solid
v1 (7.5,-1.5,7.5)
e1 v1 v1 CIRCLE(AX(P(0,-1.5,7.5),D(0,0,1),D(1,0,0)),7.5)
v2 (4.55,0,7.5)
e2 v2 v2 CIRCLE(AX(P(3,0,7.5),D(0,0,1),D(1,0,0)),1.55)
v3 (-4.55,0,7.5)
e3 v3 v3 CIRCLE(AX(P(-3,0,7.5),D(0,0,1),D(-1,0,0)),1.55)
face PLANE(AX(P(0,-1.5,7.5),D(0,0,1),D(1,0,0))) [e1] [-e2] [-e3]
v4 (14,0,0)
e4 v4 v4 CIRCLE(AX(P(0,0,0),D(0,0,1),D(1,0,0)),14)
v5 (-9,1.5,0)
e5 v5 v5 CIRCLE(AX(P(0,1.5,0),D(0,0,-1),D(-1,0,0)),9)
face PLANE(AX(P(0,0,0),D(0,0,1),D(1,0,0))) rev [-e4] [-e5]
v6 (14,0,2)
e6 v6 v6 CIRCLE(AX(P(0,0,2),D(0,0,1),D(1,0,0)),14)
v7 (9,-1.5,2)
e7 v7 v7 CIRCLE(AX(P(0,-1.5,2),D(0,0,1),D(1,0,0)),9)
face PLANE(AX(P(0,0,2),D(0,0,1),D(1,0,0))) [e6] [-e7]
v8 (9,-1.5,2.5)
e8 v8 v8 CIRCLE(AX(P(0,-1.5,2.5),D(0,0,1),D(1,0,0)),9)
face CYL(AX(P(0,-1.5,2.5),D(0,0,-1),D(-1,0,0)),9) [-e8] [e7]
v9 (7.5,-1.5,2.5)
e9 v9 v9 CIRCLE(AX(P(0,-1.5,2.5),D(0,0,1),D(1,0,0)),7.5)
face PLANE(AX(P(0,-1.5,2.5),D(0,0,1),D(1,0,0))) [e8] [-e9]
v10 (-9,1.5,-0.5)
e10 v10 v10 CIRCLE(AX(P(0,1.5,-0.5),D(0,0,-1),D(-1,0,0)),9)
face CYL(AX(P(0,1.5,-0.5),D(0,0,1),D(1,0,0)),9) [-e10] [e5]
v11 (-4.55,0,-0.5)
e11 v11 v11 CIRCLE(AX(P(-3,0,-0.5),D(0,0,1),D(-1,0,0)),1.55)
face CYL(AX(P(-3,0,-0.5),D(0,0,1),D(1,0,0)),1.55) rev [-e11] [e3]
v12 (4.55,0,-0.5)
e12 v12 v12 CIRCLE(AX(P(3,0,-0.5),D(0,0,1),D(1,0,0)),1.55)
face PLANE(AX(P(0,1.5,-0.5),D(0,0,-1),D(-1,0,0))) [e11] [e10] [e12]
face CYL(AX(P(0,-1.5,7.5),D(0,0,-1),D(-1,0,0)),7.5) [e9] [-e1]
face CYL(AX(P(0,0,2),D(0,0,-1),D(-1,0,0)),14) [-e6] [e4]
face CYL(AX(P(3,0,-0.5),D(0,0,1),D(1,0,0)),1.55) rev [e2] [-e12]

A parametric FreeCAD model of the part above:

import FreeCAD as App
import Part
import Sketcher
from FreeCAD import Vector

doc = App.newDocument("Part")
body = doc.addObject("PartDesign::Body", "Body")

# Sketch on XY plane
sketch1 = body.newObject("Sketcher::SketchObject", "Sketch")
sketch1.AttachmentSupport = (doc.getObject("XY_Plane"), [""])
sketch1.MapMode = "FlatFace"
sketch1.addGeometry(Part.Circle(Vector(0, 0, 0), Vector(0, 0, 1), 14), False)
sketch1.addConstraint([
    Sketcher.Constraint("Coincident", 0, 3, -1, 1),
    Sketcher.Constraint("Diameter", 0, 28.0),
])
pad1 = body.newObject("PartDesign::Pad", "Pad")
pad1.Profile = sketch1
pad1.Length = 2

# Sketch on XY plane
sketch2 = body.newObject("Sketcher::SketchObject", "Sketch001")
sketch2.AttachmentSupport = (doc.getObject("XY_Plane"), [""])
sketch2.MapMode = "FlatFace"
sketch2.AttachmentOffset = App.Placement(Vector(0, 0, 2), App.Rotation())
sketch2.addGeometry(Part.Circle(Vector(0, -2, 0), Vector(0, 0, 1), 9), False)
sketch2.addConstraint([
    Sketcher.Constraint("PointOnObject", 0, 3, -2),
    Sketcher.Constraint("Diameter", 0, 18.0),
    Sketcher.Constraint("DistanceY", 0, 3, -1, 1, 1.5),
])
pad2 = body.newObject("PartDesign::Pad", "Pad001")
pad2.Profile = sketch2
pad2.Length = 0.5

# Sketch on XY plane
sketch3 = body.newObject("Sketcher::SketchObject", "Sketch002")
sketch3.AttachmentSupport = (doc.getObject("XY_Plane"), [""])
sketch3.MapMode = "FlatFace"
sketch3.AttachmentOffset = App.Placement(Vector(0, 0, 2.5), App.Rotation())
sketch3.addGeometry(Part.Circle(Vector(0, -2, 0), Vector(0, 0, 1), 8), False)
sketch3.addConstraint([
    Sketcher.Constraint("PointOnObject", 0, 3, -2),
    Sketcher.Constraint("Diameter", 0, 15.0),
    Sketcher.Constraint("DistanceY", 0, 3, -1, 1, 1.5),
])
pad3 = body.newObject("PartDesign::Pad", "Pad002")
pad3.Profile = sketch3
pad3.Length = 5

# Sketch on XY plane
sketch4 = body.newObject("Sketcher::SketchObject", "Sketch003")
sketch4.AttachmentSupport = (doc.getObject("XY_Plane"), [""])
sketch4.MapMode = "FlatFace"
sketch4.addGeometry(Part.Circle(Vector(0, 2, 0), Vector(0, 0, 1), 9), False)
sketch4.addConstraint([
    Sketcher.Constraint("PointOnObject", 0, 3, -2),
    Sketcher.Constraint("Diameter", 0, 18.0),
    Sketcher.Constraint("DistanceY", -1, 1, 0, 3, 1.5),
])
pad4 = body.newObject("PartDesign::Pad", "Pad003")
pad4.Profile = sketch4
pad4.Length = 0.5
pad4.Reversed = True

# Sketch on XY plane
sketch5 = body.newObject("Sketcher::SketchObject", "Sketch004")
sketch5.AttachmentSupport = (doc.getObject("XY_Plane"), [""])
sketch5.MapMode = "FlatFace"
sketch5.AttachmentOffset = App.Placement(Vector(0, 0, 7.5), App.Rotation())
sketch5.addGeometry([
    Part.Circle(Vector(3, 0, 0), Vector(0, 0, 1), 1.6),
    Part.Circle(Vector(-3, 0, 0), Vector(0, 0, 1), 1.6),
], False)
sketch5.addConstraint([
    Sketcher.Constraint("Equal", 0, 1),
    Sketcher.Constraint("Symmetric", 0, 3, 1, 3, -1, 1),
    Sketcher.Constraint("PointOnObject", 0, 3, -1),
    Sketcher.Constraint("Diameter", 0, 3.1),
    Sketcher.Constraint("DistanceX", -1, 1, 0, 3, 3.0),
])
pocket1 = body.newObject("PartDesign::Pocket", "Pocket")
pocket1.Profile = sketch5
pocket1.Type = "ThroughAll"

doc.recompute()
